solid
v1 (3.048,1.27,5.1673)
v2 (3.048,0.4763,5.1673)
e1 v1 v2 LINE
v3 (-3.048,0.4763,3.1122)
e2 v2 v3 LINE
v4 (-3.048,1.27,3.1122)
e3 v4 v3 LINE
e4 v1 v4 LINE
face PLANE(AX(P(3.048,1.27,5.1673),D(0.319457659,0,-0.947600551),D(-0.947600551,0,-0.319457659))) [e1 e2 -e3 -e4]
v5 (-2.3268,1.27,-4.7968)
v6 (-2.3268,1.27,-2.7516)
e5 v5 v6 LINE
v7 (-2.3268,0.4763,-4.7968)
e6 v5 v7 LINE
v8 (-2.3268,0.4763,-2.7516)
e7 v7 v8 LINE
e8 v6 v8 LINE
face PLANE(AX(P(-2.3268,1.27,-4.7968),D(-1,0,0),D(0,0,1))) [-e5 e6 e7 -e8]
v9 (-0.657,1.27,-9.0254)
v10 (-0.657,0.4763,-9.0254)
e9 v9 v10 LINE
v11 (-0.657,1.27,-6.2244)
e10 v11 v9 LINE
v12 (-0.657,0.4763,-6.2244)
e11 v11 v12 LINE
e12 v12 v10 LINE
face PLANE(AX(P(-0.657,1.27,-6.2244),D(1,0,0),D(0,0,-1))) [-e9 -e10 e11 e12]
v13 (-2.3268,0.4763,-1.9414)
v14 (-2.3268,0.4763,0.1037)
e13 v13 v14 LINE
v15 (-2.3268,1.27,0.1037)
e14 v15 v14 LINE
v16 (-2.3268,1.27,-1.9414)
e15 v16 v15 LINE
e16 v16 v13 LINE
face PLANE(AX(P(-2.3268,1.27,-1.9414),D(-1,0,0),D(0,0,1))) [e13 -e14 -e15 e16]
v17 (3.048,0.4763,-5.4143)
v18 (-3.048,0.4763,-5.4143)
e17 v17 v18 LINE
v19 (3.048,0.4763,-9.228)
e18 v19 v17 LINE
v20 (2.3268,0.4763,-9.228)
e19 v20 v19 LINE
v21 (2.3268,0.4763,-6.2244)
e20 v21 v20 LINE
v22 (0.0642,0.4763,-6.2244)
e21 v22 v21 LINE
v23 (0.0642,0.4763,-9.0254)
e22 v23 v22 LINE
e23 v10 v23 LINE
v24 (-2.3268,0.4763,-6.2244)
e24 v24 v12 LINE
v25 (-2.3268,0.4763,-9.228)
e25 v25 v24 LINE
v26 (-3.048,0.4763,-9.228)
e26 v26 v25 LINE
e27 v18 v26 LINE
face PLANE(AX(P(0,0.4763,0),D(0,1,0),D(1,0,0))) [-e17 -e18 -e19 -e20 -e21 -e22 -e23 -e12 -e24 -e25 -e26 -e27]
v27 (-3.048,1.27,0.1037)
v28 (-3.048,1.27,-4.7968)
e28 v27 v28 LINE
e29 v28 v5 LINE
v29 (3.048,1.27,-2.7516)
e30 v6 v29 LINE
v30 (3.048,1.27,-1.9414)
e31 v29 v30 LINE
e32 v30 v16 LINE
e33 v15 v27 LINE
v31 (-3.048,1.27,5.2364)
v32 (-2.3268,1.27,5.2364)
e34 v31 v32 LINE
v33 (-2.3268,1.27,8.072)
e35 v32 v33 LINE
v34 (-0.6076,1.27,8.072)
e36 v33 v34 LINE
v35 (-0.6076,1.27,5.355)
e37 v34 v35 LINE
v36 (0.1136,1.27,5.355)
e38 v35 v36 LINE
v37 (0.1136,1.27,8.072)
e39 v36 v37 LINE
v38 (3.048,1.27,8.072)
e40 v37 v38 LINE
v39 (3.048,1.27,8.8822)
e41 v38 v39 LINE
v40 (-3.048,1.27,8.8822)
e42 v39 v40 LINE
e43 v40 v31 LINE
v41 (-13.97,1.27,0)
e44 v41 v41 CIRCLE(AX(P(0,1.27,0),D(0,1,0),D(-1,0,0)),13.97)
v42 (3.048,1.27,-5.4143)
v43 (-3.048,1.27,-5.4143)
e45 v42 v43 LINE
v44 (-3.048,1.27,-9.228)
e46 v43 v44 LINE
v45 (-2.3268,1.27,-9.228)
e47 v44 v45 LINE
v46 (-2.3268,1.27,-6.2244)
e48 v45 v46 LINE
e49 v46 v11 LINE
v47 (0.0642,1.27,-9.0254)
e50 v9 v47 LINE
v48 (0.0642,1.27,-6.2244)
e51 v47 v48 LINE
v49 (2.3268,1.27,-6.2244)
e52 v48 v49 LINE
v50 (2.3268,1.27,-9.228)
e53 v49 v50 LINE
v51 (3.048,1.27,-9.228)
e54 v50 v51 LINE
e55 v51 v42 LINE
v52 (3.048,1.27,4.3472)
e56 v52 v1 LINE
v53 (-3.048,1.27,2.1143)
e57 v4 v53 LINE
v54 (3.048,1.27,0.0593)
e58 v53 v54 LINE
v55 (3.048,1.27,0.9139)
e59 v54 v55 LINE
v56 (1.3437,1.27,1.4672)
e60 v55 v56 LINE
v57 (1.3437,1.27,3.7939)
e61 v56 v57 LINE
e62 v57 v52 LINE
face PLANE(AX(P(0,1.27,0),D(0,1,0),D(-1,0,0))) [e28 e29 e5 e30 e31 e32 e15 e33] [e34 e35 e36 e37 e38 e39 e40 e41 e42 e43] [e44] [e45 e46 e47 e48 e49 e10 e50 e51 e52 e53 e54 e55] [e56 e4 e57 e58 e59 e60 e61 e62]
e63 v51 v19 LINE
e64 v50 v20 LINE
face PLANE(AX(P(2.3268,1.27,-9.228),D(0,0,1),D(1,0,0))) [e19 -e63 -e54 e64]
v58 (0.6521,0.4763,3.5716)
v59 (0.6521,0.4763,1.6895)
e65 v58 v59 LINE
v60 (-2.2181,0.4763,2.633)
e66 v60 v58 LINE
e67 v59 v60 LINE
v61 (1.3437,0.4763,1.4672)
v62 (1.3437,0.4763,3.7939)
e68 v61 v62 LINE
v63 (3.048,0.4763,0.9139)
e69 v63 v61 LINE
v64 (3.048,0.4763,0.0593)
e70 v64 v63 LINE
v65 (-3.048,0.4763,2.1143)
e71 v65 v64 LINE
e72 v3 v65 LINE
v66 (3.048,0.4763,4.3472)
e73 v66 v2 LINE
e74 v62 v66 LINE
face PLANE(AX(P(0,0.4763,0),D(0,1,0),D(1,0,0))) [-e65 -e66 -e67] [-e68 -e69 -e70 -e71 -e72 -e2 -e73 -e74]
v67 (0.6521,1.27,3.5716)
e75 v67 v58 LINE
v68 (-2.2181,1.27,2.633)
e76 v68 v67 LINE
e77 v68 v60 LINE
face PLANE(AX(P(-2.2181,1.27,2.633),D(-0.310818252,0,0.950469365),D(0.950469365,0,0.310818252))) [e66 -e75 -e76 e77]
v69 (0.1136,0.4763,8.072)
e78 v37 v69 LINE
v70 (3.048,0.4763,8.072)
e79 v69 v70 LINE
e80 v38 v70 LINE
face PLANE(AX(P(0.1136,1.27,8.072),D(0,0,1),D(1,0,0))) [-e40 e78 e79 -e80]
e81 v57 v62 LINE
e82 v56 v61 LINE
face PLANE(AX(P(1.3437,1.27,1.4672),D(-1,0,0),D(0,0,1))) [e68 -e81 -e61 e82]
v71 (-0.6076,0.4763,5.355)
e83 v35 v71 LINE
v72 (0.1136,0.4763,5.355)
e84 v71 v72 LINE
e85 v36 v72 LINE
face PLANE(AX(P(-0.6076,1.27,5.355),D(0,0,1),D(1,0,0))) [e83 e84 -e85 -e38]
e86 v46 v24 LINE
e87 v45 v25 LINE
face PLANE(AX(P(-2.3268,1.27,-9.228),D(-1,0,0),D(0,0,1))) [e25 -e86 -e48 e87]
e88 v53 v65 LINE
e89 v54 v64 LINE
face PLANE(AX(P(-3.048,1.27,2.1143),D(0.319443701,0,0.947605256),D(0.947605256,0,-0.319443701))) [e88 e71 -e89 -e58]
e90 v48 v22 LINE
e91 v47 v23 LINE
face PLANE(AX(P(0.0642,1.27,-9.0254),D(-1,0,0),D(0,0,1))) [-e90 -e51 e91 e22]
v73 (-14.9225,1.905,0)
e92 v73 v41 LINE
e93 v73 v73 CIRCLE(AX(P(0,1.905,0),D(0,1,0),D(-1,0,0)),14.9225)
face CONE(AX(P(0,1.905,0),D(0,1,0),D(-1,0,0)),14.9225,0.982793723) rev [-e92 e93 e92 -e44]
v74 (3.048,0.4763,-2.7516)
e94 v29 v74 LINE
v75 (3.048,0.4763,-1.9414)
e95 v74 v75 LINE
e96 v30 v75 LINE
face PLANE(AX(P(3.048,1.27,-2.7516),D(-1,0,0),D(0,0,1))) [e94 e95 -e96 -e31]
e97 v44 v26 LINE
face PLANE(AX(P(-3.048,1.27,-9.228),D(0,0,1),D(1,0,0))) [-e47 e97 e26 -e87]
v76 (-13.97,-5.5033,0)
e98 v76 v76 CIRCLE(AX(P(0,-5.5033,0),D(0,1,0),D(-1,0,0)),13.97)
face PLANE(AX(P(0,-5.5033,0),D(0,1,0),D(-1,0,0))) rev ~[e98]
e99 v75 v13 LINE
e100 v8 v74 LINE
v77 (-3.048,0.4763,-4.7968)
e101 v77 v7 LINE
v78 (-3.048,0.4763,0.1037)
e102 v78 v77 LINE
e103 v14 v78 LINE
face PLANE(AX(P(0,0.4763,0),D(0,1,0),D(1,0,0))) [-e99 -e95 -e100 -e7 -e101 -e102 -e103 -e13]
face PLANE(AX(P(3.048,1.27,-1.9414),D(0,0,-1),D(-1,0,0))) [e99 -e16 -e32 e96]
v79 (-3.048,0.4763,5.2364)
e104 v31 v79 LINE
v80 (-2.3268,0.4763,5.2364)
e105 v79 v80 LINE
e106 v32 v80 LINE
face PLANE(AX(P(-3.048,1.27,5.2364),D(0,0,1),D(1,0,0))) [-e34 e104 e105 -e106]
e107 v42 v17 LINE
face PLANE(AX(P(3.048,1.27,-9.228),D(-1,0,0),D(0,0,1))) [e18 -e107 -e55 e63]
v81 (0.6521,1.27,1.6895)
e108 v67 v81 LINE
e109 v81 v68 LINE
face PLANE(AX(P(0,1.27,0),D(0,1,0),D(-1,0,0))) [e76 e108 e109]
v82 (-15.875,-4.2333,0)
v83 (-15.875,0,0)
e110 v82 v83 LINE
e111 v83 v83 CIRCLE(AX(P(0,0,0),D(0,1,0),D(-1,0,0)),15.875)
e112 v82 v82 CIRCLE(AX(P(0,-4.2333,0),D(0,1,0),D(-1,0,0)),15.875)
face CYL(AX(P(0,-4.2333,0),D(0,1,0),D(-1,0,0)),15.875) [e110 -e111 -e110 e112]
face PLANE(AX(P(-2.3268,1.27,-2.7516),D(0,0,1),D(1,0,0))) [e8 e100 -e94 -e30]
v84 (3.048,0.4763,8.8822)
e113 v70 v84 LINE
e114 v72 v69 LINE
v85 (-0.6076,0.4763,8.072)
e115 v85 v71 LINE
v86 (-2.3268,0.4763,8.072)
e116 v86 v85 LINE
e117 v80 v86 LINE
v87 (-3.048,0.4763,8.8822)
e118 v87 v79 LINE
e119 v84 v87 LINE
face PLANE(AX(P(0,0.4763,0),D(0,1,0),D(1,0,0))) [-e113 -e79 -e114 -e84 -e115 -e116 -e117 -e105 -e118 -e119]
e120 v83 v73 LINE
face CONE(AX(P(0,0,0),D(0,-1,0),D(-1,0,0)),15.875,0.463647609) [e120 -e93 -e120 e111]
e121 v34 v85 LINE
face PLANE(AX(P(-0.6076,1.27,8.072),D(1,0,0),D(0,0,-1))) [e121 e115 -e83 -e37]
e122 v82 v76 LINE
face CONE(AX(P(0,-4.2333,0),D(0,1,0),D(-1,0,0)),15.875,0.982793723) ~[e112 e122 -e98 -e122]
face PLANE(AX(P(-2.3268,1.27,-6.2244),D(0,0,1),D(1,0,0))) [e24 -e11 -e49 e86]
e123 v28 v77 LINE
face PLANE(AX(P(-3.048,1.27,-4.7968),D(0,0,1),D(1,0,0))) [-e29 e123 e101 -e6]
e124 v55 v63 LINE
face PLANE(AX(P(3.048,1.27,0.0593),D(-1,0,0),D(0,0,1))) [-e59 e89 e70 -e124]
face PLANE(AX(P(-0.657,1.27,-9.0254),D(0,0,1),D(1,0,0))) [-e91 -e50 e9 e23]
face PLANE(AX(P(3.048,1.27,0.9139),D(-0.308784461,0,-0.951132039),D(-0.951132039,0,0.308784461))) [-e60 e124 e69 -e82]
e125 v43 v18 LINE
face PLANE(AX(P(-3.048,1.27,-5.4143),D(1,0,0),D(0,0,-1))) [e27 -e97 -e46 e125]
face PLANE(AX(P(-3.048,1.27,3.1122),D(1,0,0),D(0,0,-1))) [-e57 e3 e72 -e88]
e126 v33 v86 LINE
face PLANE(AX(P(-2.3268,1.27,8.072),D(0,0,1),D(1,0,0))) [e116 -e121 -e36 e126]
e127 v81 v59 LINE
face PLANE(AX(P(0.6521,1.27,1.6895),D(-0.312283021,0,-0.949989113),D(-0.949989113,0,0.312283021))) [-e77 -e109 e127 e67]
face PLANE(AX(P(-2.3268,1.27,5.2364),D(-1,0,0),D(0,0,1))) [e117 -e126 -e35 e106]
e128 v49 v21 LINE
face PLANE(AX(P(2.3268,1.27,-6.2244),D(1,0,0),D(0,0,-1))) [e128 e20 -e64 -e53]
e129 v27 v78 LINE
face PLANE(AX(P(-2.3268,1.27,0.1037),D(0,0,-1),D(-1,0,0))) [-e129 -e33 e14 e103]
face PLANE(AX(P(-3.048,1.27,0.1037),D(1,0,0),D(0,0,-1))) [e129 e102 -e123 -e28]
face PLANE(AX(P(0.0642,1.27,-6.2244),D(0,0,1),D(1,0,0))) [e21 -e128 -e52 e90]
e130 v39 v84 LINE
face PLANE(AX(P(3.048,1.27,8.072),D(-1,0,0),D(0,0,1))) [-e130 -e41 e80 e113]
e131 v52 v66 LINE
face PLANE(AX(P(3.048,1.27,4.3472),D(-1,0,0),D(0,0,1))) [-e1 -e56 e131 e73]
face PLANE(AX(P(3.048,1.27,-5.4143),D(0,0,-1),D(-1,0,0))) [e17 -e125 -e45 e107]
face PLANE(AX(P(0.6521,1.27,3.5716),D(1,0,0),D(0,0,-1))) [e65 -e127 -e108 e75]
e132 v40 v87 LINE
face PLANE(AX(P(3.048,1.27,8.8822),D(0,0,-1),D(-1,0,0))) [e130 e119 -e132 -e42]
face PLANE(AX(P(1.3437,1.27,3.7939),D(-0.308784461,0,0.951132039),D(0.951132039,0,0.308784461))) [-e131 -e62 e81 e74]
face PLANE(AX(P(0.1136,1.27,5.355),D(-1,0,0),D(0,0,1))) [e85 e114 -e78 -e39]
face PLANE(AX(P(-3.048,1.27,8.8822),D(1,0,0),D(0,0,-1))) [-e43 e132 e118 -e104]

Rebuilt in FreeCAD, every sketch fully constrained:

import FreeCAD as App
import Part
import Sketcher
Q = App.Units.Quantity


def add_polygon(sketch, points):
    """Adds a closed chain of lines whose ends are joined by coincident constraints."""
    first, n = sketch.GeometryCount, len(points)
    for a, b in zip(points, points[1:] + points[:1]):
        sketch.addGeometry(Part.LineSegment(App.Vector(*a, 0), App.Vector(*b, 0)), False)
    for i in range(n):
        sketch.addConstraint(Sketcher.Constraint("Coincident", first + i, 2, first + (i + 1) % n, 1))

doc = App.newDocument("Part")
body = doc.addObject("PartDesign::Body", "Body")

# Sketch on XY plane
sketch1 = doc.addObject("Sketcher::SketchObject", "Sketch")
body.addObject(sketch1)
sketch1.AttachmentSupport = (doc.XY_Plane, [""])
sketch1.MapMode = "FlatFace"
add_polygon(sketch1, [(-14.9, 1.9), (-15.9, 0), (-15.9, -4.2), (-14, -5.5), (0, -5.5), (0, 1.3), (-14, 1.3)])  # lines 0-6
sketch1.addConstraint([
    Sketcher.Constraint("Vertical", 1),
    Sketcher.Constraint("Horizontal", 3),
    Sketcher.Constraint("Vertical", 4),
    Sketcher.Constraint("Horizontal", 5),
    Sketcher.Constraint("PointOnObject", 0, 2, -1),
    Sketcher.Constraint("PointOnObject", 3, 2, -2),
    Sketcher.Constraint("Parallel", 2, 6),
    Sketcher.Constraint("Vertical", 2, 2, 5, 2),
    Sketcher.Constraint("DistanceX", 3, 1, 3, 2, Q("0.55 in")),
    Sketcher.Constraint("DistanceY", -1, 1, 4, 2, Q("0.05 in")),
    Sketcher.Constraint("DistanceY", 2, 2, 1, 2, Q("0.05 in")),
    Sketcher.Constraint("DistanceX", 0, 2, -1, 1, Q("0.625 in")),
    Sketcher.Constraint("DistanceY", 5, 2, 6, 2, Q("0.025 in")),
    Sketcher.Constraint("DistanceY", 1, 2, 1, 1, Q("4.2333 mm")),
])
revolution = doc.addObject("PartDesign::Revolution", "Revolution")
body.addObject(revolution)
revolution.Profile = sketch1
revolution.ReferenceAxis = (sketch1, ["V_Axis"])
revolution.Angle = 360

# Sketch on XZ plane
sketch2 = doc.addObject("Sketcher::SketchObject", "Sketch001")
body.addObject(sketch2)
sketch2.AttachmentSupport = (doc.XZ_Plane, [""])
sketch2.MapMode = "FlatFace"
sketch2.AttachmentOffset = App.Placement(App.Vector(0, 0, -0.05 * 25.4), App.Rotation())
add_polygon(sketch2, [(-2.3, 8.1), (-2.3, 5.2), (-3, 5.2), (-3, 8.9), (3, 8.9), (3, 8.1), (0.1, 8.1), (0.1, 5.4), (-0.6, 5.4), (-0.6, 8.1)])  # lines 0-9
add_polygon(sketch2, [(-3, 3.1), (3, 5.2), (3, 4.3), (1.3, 3.8), (1.3, 1.5), (3, 0.9), (3, 0.1), (-3, 2.1)])  # lines 10-17
add_polygon(sketch2, [(-2.2, 2.6), (0.7, 1.7), (0.7, 3.6)])  # lines 18-20
add_polygon(sketch2, [(-2.3, -1.9), (3, -1.9), (3, -2.8), (-2.3, -2.8), (-2.3, -4.8), (-3, -4.8), (-3, 0.1), (-2.3, 0.1)])  # lines 21-28
add_polygon(sketch2, [(-3, -5.4), (3, -5.4), (3, -9.2), (2.3, -9.2), (2.3, -6.2), (0.1, -6.2), (0.1, -9), (-0.7, -9), (-0.7, -6.2), (-2.3, -6.2), (-2.3, -9.2), (-3, -9.2)])  # lines 29-40
sketch2.addConstraint([
    Sketcher.Constraint("Vertical", 0),
    Sketcher.Constraint("Horizontal", 1),
    Sketcher.Constraint("Vertical", 2),
    Sketcher.Constraint("Horizontal", 3),
    Sketcher.Constraint("Vertical", 4),
    Sketcher.Constraint("Horizontal", 5),
    Sketcher.Constraint("Vertical", 6),
    Sketcher.Constraint("Horizontal", 7),
    Sketcher.Constraint("Vertical", 8),
    Sketcher.Constraint("Horizontal", 9),
    Sketcher.Constraint("Vertical", 11),
    Sketcher.Constraint("Vertical", 13),
    Sketcher.Constraint("Vertical", 15),
    Sketcher.Constraint("Vertical", 17),
    Sketcher.Constraint("Vertical", 19),
    Sketcher.Constraint("Horizontal", 21),
    Sketcher.Constraint("Vertical", 22),
    Sketcher.Constraint("Horizontal", 23),
    Sketcher.Constraint("Vertical", 24),
    Sketcher.Constraint("Horizontal", 25),
    Sketcher.Constraint("Vertical", 26),
    Sketcher.Constraint("Horizontal", 27),
    Sketcher.Constraint("Vertical", 28),
    Sketcher.Constraint("Horizontal", 29),
    Sketcher.Constraint("Vertical", 30),
    Sketcher.Constraint("Horizontal", 31),
    Sketcher.Constraint("Vertical", 32),
    Sketcher.Constraint("Horizontal", 33),
    Sketcher.Constraint("Vertical", 34),
    Sketcher.Constraint("Horizontal", 35),
    Sketcher.Constraint("Vertical", 36),
    Sketcher.Constraint("Horizontal", 37),
    Sketcher.Constraint("Vertical", 38),
    Sketcher.Constraint("Horizontal", 39),
    Sketcher.Constraint("Vertical", 40),
    Sketcher.Constraint("Symmetric", 32, 2, 37, 2, -2),
    Sketcher.Constraint("Symmetric", 30, 2, 39, 2, -2),
    Sketcher.Constraint("Horizontal", 5, 2, 8, 2),
    Sketcher.Constraint("Vertical", 4, 2, 10, 2),
    Sketcher.Constraint("Vertical", 11, 2, 14, 2),
    Sketcher.Constraint("Vertical", 2, 2, 16, 2),
    Sketcher.Constraint("Vertical", 15, 2, 21, 2),
    Sketcher.Constraint("Vertical", 9, 2, 23, 2),
    Sketcher.Constraint("Vertical", 17, 2, 25, 2),
    Sketcher.Constraint("Vertical", 24, 2, 27, 2),
    Sketcher.Constraint("Vertical", 22, 2, 29, 2),
    Sketcher.Constraint("Vertical", 28, 2, 37, 2),
    Sketcher.Constraint("Vertical", 26, 2, 39, 2),
    Sketcher.Constraint("Equal", 1, 7),
    Sketcher.Constraint("Equal", 31, 35),
    Sketcher.Constraint("Equal", 4, 22),
    Sketcher.Constraint("Equal", 24, 28),
    Sketcher.Constraint("Equal", 12, 14),
    Sketcher.Constraint("Equal", 10, 16),
    Sketcher.Constraint("DistanceX", 3, 1, 3, 2, Q("0.24 in")),
    Sketcher.Constraint("Angle", 10, Q("18.6301 deg")),
    Sketcher.Constraint("DistanceX", 1, 2, 1, 1, Q("0.0284 in")),
    Sketcher.Constraint("DistanceY", 4, 2, 4, 1, Q("0.0319 in")),
    Sketcher.Constraint("DistanceY", 13, 2, 13, 1, Q("0.0916 in")),
    Sketcher.Constraint("DistanceY", 19, 1, 19, 2, Q("0.0741 in")),
    Sketcher.Constraint("DistanceX", 20, 2, 19, 2, Q("0.113 in")),
    Sketcher.Constraint("DistanceY", 23, 2, 20, 2, Q("0.212 in")),
    Sketcher.Constraint("Distance", 20, Q("0.1189 in")),
    Sketcher.Constraint("DistanceX", 5, 2, 5, 1, Q("2.9344 mm")),
    Sketcher.Constraint("DistanceX", 33, 2, 33, 1, Q("2.2626 mm")),
    Sketcher.Constraint("DistanceY", 0, 2, 0, 1, Q("2.8356 mm")),
    Sketcher.Constraint("DistanceY", 6, 2, 6, 1, Q("2.717 mm")),
    Sketcher.Constraint("DistanceY", 11, 2, 11, 1, Q("0.82 mm")),
    Sketcher.Constraint("DistanceY", 15, 2, 15, 1, Q("0.8546 mm")),
    Sketcher.Constraint("DistanceY", 17, 1, 17, 2, Q("0.0392913 in")),
    Sketcher.Constraint("DistanceY", 24, 2, 24, 1, Q("2.0452 mm")),
    Sketcher.Constraint("DistanceY", 30, 2, 30, 1, Q("3.8137 mm")),
    Sketcher.Constraint("DistanceY", 32, 1, 32, 2, Q("3.0036 mm")),
    Sketcher.Constraint("DistanceY", 34, 2, 34, 1, Q("2.801 mm")),
    Sketcher.Constraint("DistanceY", -1, 1, 2, 2, Q("0.3497 in")),
    Sketcher.Constraint("DistanceX", -1, 1, 12, 2, Q("0.0529 in")),
    Sketcher.Constraint("DistanceY", 30, 2, -1, 1, Q("0.3633 in")),
    Sketcher.Constraint("DistanceY", 10, 2, 6, 2, Q("0.0074 in")),
    Sketcher.Constraint("DistanceX", 6, 2, 19, 2, Q("0.0212 in")),
    Sketcher.Constraint("DistanceY", 20, 2, 0, 2, Q("0.1025 in")),
])
pocket1 = doc.addObject("PartDesign::Pocket", "Pocket")
body.addObject(pocket1)
pocket1.Profile = sketch2
pocket1.Length = Q("0.031248 in")
pocket1.Reversed = True

doc.recompute()
